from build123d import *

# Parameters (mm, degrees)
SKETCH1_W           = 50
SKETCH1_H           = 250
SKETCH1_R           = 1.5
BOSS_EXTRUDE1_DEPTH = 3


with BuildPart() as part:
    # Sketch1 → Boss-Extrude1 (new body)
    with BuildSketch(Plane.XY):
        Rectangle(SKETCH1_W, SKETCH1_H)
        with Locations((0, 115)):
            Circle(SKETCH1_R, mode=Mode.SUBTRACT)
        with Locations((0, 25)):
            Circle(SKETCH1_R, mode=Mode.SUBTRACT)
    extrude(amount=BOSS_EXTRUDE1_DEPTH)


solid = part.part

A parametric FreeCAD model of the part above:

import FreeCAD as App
import Part
import Sketcher


def add_polygon(sketch, points):
    """Adds a closed chain of lines whose ends are joined by coincident constraints."""
    first, n = sketch.GeometryCount, len(points)
    for a, b in zip(points, points[1:] + points[:1]):
        sketch.addGeometry(Part.LineSegment(App.Vector(*a, 0), App.Vector(*b, 0)), False)
    for i in range(n):
        sketch.addConstraint(Sketcher.Constraint("Coincident", first + i, 2, first + (i + 1) % n, 1))

doc = App.newDocument("Part")
params = doc.addObject("Spreadsheet::Sheet", "Params")
for row, (alias, value) in enumerate([
    ("sketch1_diameter", "3 mm"),
    ("sketch1_width", "50 mm"),
    ("sketch1_height", "250 mm"),
    ("pad1_length", "3 mm"),
], start=1):
    params.set(f"A{row}", alias)
    params.set(f"B{row}", "=" + value)
    params.setAlias(f"B{row}", alias)

body = doc.addObject("PartDesign::Body", "Body")

# Sketch on XY plane
sketch1 = body.newObject("Sketcher::SketchObject", "Sketch")
sketch1.AttachmentSupport = (doc.getObject("XY_Plane"), [""])
sketch1.MapMode = "FlatFace"
add_polygon(sketch1, [(-25, 125), (-25, -125), (25, -125), (25, 125)])  # lines 0-3
sketch1.addGeometry(Part.Circle(App.Vector(0, 25, 0), App.Vector(0, 0, 1), 1.5), False)  # 4
sketch1.addGeometry(Part.Circle(App.Vector(0, 115, 0), App.Vector(0, 0, 1), 1.5), False)  # 5
sketch1.addConstraint([
    Sketcher.Constraint("Vertical", 0),
    Sketcher.Constraint("Horizontal", 1),
    Sketcher.Constraint("Vertical", 2),
    Sketcher.Constraint("Horizontal", 3),
    Sketcher.Constraint("Equal", 4, 5),
    Sketcher.Constraint("Symmetric", 0, 2, 2, 2, -1, 1),
    Sketcher.Constraint("PointOnObject", 4, 3, -2),
    Sketcher.Constraint("PointOnObject", 5, 3, -2),
    Sketcher.Constraint("Diameter", 4, 3.0),
    Sketcher.Constraint("DistanceX", 1, 1, 1, 2, 50.0),
    Sketcher.Constraint("DistanceY", 0, 2, 0, 1, 250.0),
    Sketcher.Constraint("DistanceY", -1, 1, 4, 3, 25.0),
    Sketcher.Constraint("DistanceY", -1, 1, 5, 3, 115.0),
])
sketch1.setExpression("Constraints[12]", "Params.sketch1_diameter")
sketch1.setExpression("Constraints[13]", "Params.sketch1_width")
sketch1.setExpression("Constraints[14]", "Params.sketch1_height")
pad1 = body.newObject("PartDesign::Pad", "Pad")
pad1.Profile = sketch1
pad1.setExpression("Length", "Params.pad1_length")

doc.recompute()
